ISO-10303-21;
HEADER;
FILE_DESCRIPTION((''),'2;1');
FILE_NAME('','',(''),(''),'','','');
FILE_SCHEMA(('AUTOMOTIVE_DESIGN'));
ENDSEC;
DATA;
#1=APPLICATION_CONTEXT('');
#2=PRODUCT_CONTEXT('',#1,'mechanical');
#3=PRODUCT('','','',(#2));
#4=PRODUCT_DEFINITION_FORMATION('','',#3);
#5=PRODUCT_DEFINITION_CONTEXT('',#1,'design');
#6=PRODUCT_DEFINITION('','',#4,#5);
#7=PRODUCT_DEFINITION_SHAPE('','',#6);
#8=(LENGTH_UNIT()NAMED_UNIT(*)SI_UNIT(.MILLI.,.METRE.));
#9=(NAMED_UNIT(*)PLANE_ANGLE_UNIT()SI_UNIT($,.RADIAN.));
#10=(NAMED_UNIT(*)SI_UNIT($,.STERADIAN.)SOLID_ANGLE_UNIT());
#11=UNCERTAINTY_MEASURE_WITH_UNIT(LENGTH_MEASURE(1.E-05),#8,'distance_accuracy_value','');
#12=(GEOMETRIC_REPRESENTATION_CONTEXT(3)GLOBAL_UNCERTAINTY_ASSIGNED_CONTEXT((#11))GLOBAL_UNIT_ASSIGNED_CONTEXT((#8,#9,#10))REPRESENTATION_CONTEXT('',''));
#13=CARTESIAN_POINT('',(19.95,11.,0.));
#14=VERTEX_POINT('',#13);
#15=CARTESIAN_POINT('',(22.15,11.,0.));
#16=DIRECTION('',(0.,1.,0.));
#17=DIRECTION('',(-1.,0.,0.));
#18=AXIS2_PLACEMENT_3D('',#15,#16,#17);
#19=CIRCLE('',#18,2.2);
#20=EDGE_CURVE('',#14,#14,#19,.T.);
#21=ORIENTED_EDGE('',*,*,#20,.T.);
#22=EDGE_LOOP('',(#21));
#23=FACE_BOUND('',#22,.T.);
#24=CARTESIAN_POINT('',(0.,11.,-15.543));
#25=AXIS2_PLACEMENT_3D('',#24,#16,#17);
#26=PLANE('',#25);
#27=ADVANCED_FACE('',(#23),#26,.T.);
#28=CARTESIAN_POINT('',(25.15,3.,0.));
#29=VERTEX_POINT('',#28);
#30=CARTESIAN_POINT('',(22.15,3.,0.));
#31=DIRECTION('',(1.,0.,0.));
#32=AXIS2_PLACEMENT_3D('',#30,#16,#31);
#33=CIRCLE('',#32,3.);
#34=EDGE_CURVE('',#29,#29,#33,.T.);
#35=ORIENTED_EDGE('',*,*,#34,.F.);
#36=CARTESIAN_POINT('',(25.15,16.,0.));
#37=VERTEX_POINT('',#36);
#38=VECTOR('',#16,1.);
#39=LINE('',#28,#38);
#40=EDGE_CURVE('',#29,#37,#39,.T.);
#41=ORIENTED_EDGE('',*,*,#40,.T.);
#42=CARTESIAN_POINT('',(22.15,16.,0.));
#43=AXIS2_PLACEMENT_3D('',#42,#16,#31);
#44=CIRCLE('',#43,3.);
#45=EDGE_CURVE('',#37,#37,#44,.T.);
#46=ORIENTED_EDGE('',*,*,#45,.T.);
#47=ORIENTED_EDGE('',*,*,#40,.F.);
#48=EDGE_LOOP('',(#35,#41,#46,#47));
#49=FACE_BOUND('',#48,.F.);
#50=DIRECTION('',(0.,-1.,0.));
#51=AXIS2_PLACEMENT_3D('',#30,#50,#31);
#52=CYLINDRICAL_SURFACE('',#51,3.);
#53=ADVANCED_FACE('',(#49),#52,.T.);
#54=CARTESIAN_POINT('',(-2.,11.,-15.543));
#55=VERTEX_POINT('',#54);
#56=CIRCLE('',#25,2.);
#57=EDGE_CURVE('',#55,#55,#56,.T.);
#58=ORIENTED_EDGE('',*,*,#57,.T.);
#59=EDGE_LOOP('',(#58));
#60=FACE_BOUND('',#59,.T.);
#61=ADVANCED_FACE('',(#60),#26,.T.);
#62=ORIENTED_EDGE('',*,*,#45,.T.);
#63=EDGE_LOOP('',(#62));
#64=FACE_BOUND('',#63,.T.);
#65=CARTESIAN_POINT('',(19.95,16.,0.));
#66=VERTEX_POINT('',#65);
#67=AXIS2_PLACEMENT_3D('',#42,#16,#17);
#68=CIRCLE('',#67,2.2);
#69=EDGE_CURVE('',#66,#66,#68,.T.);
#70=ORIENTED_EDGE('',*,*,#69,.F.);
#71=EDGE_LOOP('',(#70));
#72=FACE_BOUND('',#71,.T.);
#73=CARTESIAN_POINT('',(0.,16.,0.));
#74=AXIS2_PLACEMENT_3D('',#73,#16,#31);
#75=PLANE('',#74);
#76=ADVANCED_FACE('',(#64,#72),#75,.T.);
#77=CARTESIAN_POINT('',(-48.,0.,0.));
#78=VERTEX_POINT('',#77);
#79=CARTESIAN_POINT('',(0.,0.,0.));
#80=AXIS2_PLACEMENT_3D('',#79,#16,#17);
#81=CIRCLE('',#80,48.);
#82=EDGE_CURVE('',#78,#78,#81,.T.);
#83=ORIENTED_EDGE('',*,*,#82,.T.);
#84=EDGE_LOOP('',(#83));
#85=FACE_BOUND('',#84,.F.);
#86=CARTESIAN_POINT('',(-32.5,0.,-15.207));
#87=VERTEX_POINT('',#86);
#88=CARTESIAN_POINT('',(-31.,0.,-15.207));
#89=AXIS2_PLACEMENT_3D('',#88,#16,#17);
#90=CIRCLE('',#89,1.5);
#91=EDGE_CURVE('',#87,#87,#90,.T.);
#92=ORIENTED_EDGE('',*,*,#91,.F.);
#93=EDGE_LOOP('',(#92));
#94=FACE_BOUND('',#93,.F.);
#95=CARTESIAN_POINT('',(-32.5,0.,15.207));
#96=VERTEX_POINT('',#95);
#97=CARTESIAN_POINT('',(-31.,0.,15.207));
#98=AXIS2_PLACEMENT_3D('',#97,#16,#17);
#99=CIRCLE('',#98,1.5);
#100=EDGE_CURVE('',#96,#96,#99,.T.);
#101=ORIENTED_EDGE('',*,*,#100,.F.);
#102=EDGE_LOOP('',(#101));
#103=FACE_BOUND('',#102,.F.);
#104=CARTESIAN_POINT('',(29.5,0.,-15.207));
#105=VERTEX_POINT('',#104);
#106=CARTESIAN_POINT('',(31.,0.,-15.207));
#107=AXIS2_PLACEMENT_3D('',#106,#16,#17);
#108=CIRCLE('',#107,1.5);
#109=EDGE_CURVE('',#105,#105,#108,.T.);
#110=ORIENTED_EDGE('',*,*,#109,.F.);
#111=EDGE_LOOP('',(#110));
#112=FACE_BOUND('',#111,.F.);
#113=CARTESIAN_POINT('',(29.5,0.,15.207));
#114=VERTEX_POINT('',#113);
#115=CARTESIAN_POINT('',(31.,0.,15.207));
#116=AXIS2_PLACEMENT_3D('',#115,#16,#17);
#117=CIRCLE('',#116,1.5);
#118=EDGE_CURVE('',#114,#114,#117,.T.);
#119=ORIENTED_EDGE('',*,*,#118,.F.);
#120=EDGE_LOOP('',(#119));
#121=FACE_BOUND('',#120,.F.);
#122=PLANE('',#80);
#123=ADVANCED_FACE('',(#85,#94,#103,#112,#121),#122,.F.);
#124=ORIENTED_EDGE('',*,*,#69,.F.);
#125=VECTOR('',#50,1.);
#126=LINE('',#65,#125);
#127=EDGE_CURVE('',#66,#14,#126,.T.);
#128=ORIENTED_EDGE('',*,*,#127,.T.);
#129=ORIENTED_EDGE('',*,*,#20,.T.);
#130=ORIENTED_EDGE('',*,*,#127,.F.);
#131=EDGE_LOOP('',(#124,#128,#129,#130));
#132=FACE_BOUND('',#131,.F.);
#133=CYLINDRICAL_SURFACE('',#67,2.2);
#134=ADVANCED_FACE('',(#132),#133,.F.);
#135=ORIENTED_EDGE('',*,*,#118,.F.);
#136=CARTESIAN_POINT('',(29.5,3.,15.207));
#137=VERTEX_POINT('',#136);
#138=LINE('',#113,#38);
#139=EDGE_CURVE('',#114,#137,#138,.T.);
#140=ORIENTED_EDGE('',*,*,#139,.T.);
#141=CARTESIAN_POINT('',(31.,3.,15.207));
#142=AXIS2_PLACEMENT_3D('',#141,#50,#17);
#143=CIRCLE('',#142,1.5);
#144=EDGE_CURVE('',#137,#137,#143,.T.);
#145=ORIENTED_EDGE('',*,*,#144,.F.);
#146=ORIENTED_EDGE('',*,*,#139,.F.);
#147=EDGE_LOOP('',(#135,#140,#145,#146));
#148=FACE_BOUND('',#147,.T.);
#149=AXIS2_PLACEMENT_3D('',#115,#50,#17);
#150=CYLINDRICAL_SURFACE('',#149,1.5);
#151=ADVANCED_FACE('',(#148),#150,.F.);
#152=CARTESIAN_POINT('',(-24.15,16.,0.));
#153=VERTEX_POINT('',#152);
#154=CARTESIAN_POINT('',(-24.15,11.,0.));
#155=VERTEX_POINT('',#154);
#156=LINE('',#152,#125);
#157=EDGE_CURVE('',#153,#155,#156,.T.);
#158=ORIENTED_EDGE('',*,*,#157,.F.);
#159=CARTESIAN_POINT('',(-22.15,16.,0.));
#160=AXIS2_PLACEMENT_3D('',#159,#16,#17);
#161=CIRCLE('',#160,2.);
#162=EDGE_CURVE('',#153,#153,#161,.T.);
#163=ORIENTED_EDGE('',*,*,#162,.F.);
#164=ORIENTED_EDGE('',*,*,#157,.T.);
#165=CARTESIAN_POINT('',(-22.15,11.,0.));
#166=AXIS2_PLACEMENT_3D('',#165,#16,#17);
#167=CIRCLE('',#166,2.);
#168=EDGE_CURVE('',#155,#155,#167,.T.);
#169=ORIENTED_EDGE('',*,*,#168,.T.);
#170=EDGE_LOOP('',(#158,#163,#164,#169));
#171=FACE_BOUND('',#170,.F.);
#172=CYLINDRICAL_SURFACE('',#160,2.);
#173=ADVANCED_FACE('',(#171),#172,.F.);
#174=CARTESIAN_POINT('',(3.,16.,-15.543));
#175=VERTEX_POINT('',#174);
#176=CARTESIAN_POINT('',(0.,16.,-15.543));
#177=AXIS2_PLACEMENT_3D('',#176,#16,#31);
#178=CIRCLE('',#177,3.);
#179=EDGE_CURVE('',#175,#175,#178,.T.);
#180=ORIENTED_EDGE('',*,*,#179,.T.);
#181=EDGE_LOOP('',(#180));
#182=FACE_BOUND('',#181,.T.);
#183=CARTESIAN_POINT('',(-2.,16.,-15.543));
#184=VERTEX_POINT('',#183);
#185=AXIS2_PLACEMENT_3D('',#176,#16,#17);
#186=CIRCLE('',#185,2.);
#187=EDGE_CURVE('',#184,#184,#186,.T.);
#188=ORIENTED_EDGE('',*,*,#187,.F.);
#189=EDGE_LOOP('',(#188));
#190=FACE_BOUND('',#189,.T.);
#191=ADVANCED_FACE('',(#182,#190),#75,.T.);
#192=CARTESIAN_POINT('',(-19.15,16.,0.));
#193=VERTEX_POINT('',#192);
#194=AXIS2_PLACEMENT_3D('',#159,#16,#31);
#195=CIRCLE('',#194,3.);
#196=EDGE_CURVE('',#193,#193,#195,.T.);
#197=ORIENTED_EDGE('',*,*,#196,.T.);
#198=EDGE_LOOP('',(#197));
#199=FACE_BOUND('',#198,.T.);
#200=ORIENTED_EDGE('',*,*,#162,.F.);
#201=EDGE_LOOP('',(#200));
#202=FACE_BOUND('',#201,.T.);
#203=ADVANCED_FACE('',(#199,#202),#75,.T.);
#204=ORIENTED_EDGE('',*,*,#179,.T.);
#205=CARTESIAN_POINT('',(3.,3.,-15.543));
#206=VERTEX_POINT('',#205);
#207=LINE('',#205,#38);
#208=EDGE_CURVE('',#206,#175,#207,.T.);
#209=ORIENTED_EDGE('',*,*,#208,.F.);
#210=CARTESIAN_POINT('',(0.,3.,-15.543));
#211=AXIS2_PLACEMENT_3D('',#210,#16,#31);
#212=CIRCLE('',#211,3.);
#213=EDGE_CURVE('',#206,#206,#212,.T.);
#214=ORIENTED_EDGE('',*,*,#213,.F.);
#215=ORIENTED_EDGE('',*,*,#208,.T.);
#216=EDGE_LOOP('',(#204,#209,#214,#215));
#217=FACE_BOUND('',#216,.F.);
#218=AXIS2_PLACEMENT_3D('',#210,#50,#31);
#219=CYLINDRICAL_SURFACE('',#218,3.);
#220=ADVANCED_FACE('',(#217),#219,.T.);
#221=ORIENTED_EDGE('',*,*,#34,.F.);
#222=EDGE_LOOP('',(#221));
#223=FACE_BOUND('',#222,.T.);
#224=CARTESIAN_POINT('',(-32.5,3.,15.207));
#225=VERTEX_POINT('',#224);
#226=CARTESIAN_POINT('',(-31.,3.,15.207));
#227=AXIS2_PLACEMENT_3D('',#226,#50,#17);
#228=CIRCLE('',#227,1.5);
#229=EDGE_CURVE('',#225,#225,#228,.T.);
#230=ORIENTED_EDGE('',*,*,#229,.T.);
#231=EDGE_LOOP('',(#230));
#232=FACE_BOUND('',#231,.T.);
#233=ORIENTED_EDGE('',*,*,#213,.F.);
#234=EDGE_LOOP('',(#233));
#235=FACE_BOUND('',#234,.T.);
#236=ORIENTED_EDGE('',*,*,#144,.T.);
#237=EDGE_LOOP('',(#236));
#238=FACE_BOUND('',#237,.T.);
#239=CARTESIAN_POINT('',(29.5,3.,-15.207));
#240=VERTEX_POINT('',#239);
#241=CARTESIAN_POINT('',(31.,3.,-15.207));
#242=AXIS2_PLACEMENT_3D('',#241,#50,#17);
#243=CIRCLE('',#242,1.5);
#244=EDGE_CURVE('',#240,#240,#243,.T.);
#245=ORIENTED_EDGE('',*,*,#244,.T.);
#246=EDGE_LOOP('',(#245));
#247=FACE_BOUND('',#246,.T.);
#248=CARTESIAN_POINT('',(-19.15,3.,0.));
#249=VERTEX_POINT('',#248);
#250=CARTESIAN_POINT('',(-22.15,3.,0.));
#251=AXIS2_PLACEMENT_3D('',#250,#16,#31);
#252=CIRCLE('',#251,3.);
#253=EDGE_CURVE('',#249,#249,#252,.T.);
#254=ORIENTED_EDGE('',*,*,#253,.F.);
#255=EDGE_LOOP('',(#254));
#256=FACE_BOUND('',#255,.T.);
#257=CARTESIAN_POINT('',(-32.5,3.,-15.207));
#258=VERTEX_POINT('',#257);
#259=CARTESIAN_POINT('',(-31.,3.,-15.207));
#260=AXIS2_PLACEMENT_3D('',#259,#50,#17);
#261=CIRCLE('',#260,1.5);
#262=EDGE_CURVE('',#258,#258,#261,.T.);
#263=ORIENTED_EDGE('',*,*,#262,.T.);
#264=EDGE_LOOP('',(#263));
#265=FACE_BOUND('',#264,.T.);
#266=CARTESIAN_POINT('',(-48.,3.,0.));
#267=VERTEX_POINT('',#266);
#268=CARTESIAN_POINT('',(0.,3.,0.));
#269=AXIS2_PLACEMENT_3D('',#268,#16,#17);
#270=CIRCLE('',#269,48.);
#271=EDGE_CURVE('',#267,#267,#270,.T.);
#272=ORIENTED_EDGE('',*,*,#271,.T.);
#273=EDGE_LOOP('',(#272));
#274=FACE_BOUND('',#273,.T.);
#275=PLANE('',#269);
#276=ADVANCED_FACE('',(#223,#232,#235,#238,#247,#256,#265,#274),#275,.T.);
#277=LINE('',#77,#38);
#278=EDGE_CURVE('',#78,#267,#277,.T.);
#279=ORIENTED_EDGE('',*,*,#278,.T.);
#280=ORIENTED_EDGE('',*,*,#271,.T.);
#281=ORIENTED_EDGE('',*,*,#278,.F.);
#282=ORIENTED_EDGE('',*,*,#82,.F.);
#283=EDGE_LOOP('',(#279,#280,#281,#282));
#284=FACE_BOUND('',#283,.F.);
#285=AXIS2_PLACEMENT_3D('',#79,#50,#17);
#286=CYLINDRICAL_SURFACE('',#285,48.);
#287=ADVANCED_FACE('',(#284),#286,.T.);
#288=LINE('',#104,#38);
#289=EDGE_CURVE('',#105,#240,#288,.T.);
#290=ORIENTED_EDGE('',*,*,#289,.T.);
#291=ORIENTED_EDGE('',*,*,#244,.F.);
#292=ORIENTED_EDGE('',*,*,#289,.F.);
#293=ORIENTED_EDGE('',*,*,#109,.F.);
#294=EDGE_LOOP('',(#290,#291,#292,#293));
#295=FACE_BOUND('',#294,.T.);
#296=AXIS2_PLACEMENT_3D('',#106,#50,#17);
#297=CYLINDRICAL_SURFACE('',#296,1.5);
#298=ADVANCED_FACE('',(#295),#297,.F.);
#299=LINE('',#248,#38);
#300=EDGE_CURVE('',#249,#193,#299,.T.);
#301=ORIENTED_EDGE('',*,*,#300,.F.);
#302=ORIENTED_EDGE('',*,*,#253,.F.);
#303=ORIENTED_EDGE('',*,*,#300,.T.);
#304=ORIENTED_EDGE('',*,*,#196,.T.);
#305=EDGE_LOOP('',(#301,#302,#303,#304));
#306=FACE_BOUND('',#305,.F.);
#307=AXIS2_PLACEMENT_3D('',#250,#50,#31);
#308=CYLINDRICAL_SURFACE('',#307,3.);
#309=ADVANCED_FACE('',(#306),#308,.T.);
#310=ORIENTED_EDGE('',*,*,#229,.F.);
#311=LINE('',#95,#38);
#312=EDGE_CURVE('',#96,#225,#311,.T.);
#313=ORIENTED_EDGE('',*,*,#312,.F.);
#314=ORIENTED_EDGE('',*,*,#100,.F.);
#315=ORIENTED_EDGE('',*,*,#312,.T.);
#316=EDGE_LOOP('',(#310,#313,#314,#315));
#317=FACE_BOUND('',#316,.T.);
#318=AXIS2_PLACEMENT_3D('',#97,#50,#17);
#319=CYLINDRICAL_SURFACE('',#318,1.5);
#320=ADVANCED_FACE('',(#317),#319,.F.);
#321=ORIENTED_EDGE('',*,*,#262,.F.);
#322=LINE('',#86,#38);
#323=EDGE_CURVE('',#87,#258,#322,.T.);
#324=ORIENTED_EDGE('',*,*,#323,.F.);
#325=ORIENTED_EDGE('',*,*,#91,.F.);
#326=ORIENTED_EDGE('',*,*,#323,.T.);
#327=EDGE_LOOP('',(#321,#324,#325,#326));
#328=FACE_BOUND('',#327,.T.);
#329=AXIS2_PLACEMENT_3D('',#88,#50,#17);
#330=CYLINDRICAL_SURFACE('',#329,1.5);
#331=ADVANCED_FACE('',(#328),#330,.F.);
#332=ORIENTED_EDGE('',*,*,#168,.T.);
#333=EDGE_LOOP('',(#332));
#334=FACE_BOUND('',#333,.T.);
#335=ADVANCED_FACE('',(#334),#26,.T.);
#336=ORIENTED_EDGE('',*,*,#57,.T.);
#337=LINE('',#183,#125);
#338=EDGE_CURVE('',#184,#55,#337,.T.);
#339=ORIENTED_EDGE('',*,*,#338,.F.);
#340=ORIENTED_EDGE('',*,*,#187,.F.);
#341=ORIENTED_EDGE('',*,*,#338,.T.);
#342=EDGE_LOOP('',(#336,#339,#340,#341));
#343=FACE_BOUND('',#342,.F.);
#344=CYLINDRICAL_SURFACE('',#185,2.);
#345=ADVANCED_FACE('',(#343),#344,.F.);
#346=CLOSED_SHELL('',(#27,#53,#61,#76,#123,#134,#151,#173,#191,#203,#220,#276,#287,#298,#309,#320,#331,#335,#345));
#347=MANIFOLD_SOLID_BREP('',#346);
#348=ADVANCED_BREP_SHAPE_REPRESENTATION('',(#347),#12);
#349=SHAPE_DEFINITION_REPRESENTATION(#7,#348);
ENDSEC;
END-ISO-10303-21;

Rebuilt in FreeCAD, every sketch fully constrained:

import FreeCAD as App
import Part
import Sketcher
from FreeCAD import Vector
Q = App.Units.Quantity

doc = App.newDocument("Part")
body = doc.addObject("PartDesign::Body", "Body")

# Sketch on XZ plane
sketch1 = body.newObject("Sketcher::SketchObject", "Sketch")
sketch1.AttachmentSupport = (doc.getObject("XZ_Plane"), [""])
sketch1.MapMode = "FlatFace"
sketch1.addGeometry([
    Part.Circle(Vector(0, 0, 0), Vector(0, 0, 1), 48),  # 0
    Part.Circle(Vector(31, 15.207, 0), Vector(0, 0, 1), 1.5),  # 1
    Part.Circle(Vector(31, -15.207, 0), Vector(0, 0, 1), 1.5),  # 2
    Part.Circle(Vector(-31, -15.207, 0), Vector(0, 0, 1), 1.5),  # 3
    Part.Circle(Vector(-31, 15.207, 0), Vector(0, 0, 1), 1.5),  # 4
], False)
sketch1.addConstraint([
    Sketcher.Constraint("Coincident", 0, 3, -1, 1),
    Sketcher.Constraint("Equal", 1, 2),
    Sketcher.Constraint("Equal", 2, 3),
    Sketcher.Constraint("Equal", 3, 4),
    Sketcher.Constraint("Symmetric", 1, 3, 3, 3, -1, 1),
    Sketcher.Constraint("Symmetric", 2, 3, 4, 3, -1, 1),
    Sketcher.Constraint("Symmetric", 2, 3, 3, 3, -2),
    Sketcher.Constraint("Diameter", 0, Q("96 mm")),
    Sketcher.Constraint("Diameter", 1, Q("3 mm")),
    Sketcher.Constraint("DistanceX", -1, 1, 1, 3, Q("31 mm")),
    Sketcher.Constraint("DistanceY", -1, 1, 1, 3, Q("15.207 mm")),
])
pad1 = body.newObject("PartDesign::Pad", "Pad")
pad1.Profile = sketch1
pad1.Length = 3
pad1.Reversed = True

# Sketch on XZ plane
sketch2 = body.newObject("Sketcher::SketchObject", "Sketch001")
sketch2.AttachmentSupport = (doc.getObject("XZ_Plane"), [""])
sketch2.MapMode = "FlatFace"
sketch2.AttachmentOffset = App.Placement(Vector(0, 0, -3), App.Rotation())
sketch2.addGeometry([
    Part.Circle(Vector(-22.15, 0, 0), Vector(0, 0, 1), 3),
    Part.Circle(Vector(22.15, 0, 0), Vector(0, 0, 1), 3),
    Part.Circle(Vector(0, -15.543, 0), Vector(0, 0, 1), 3),
], False)
sketch2.addConstraint([
    Sketcher.Constraint("Equal", 0, 1),
    Sketcher.Constraint("Equal", 1, 2),
    Sketcher.Constraint("Symmetric", 0, 3, 1, 3, -1, 1),
    Sketcher.Constraint("PointOnObject", 0, 3, -1),
    Sketcher.Constraint("PointOnObject", 2, 3, -2),
    Sketcher.Constraint("Diameter", 0, Q("6 mm")),
    Sketcher.Constraint("DistanceX", 0, 3, 1, 3, Q("44.3 mm")),
    Sketcher.Constraint("DistanceY", 2, 3, -1, 1, Q("15.543 mm")),
])
pad2 = body.newObject("PartDesign::Pad", "Pad001")
pad2.Profile = sketch2
pad2.Length = 13
pad2.Reversed = True

# Sketch on XZ plane
sketch3 = body.newObject("Sketcher::SketchObject", "Sketch002")
sketch3.AttachmentSupport = (doc.getObject("XZ_Plane"), [""])
sketch3.MapMode = "FlatFace"
sketch3.AttachmentOffset = App.Placement(Vector(0, 0, -16), App.Rotation())
sketch3.addGeometry([
    Part.Circle(Vector(0, -15.543, 0), Vector(0, 0, 1), 2),
    Part.Circle(Vector(22.15, 0, 0), Vector(0, 0, 1), 2.2),
    Part.Circle(Vector(-22.15, 0, 0), Vector(0, 0, 1), 2),
], False)
sketch3.addConstraint([
    Sketcher.Constraint("Equal", 0, 2),
    Sketcher.Constraint("Symmetric", 1, 3, 2, 3, -1, 1),
    Sketcher.Constraint("PointOnObject", 0, 3, -2),
    Sketcher.Constraint("PointOnObject", 1, 3, -1),
    Sketcher.Constraint("Diameter", 0, Q("4 mm")),
    Sketcher.Constraint("Diameter", 1, Q("4.4 mm")),
    Sketcher.Constraint("DistanceX", 2, 3, 1, 3, Q("44.3 mm")),
    Sketcher.Constraint("DistanceY", 0, 3, -1, 1, Q("15.543 mm")),
])
pocket1 = body.newObject("PartDesign::Pocket", "Pocket")
pocket1.Profile = sketch3
pocket1.Length = 5
pocket1.Reversed = True

doc.recompute()
